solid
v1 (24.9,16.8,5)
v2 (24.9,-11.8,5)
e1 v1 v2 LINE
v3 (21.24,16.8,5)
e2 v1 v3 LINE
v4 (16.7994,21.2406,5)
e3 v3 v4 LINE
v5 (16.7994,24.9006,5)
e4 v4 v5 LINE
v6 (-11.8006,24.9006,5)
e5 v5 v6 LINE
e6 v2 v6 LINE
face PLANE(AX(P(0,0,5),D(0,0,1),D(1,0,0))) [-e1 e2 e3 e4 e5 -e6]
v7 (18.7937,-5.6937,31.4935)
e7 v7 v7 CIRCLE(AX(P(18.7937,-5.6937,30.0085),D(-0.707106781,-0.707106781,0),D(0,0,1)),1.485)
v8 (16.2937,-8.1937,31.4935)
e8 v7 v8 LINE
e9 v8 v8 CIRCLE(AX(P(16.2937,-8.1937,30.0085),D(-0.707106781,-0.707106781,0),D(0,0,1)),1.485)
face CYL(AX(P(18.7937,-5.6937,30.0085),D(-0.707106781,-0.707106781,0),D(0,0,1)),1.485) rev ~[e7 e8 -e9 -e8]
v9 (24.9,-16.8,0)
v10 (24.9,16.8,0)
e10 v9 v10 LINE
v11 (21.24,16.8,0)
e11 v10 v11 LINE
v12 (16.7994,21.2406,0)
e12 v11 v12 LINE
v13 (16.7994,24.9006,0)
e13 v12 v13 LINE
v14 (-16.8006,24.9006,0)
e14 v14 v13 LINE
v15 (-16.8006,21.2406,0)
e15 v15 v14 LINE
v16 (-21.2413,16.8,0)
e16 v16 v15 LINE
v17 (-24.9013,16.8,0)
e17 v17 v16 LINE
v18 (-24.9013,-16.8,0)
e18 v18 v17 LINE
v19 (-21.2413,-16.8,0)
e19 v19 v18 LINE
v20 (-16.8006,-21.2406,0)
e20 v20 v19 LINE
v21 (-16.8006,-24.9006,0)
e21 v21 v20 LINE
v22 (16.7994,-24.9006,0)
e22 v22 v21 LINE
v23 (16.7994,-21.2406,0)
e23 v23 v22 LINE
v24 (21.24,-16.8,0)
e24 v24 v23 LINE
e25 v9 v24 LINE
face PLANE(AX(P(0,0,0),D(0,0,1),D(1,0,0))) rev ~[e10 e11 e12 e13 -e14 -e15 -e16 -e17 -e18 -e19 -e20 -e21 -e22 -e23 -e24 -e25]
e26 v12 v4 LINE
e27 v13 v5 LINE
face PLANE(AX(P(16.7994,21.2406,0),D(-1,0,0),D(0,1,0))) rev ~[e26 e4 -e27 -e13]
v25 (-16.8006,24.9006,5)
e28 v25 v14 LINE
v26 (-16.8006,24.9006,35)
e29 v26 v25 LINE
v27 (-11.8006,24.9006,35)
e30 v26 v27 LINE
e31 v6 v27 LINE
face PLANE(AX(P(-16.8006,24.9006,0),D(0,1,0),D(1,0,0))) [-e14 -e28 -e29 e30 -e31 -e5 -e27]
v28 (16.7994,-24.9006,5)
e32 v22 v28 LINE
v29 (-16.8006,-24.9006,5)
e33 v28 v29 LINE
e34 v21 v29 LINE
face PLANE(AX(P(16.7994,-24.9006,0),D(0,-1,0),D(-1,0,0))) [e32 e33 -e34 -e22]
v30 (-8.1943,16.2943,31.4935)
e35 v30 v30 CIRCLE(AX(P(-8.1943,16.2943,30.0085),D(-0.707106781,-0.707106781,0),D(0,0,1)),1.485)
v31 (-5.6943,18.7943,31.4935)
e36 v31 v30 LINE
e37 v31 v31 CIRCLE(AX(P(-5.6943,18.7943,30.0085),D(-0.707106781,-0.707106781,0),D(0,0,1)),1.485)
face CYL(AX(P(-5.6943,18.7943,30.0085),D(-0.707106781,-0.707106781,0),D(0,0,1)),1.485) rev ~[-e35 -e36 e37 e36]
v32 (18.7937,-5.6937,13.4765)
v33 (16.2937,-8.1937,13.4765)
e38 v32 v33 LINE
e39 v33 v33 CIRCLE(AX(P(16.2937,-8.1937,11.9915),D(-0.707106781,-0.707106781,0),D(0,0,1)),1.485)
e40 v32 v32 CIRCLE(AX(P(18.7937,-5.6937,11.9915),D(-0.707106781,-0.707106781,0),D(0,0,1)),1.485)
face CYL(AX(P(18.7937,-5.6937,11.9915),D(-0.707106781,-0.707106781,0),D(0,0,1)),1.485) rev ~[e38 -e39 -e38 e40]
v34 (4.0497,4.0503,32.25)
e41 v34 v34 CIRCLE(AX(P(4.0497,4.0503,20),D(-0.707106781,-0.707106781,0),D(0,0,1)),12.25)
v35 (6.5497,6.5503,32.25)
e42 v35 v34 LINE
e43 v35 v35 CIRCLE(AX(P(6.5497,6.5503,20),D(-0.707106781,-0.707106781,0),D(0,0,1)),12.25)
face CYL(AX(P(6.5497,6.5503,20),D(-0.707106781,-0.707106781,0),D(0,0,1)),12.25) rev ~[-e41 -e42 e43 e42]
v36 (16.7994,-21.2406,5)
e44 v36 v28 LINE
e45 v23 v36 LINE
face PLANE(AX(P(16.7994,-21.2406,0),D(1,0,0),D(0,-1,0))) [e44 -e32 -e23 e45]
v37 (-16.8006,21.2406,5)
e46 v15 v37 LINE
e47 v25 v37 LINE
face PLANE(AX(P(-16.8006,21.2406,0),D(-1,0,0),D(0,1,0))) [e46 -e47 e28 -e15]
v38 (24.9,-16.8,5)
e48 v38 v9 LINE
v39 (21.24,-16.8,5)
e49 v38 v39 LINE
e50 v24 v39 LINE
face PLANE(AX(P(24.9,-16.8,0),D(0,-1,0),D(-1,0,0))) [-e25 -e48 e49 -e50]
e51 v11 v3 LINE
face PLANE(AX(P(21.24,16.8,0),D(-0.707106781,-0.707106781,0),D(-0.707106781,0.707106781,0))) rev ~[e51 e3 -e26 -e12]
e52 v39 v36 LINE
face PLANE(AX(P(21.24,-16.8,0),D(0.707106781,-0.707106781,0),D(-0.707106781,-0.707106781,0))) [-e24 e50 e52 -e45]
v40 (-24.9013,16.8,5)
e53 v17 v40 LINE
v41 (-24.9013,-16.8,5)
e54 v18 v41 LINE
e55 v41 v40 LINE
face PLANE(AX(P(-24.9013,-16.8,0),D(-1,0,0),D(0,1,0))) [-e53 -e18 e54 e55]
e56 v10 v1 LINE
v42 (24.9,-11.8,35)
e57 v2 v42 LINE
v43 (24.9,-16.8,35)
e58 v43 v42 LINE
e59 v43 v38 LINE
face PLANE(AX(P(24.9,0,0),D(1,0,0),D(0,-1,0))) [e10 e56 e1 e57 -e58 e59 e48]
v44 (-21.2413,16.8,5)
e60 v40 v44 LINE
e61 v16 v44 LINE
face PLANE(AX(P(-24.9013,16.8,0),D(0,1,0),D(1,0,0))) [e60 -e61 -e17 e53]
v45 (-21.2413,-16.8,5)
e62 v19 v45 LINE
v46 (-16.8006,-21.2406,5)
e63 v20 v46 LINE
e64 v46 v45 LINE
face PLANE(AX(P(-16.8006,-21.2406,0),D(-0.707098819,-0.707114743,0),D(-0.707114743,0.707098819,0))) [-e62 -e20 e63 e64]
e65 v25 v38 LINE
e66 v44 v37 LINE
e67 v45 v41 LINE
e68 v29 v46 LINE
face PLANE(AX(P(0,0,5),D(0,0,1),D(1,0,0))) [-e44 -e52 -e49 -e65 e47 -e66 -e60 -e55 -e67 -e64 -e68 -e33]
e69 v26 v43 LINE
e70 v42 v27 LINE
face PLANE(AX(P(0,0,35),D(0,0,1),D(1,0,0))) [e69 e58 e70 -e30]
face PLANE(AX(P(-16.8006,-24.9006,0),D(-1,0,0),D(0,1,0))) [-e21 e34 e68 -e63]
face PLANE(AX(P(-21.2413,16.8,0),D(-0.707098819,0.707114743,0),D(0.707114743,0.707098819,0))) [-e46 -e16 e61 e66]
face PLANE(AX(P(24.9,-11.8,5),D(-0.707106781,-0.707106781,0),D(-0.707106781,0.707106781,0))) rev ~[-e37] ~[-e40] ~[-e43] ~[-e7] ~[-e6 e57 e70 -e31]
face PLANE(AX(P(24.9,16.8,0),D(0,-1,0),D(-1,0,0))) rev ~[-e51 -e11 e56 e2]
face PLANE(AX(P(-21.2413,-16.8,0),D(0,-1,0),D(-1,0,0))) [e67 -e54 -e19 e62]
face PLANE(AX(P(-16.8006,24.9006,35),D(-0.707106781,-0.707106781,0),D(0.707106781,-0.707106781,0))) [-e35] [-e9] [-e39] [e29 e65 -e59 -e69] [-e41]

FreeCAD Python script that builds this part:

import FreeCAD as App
import Part
import Sketcher


def add_polygon(sketch, points):
    """Adds a closed chain of lines whose ends are joined by coincident constraints."""
    first, n = sketch.GeometryCount, len(points)
    for a, b in zip(points, points[1:] + points[:1]):
        sketch.addGeometry(Part.LineSegment(App.Vector(*a, 0), App.Vector(*b, 0)), False)
    for i in range(n):
        sketch.addConstraint(Sketcher.Constraint("Coincident", first + i, 2, first + (i + 1) % n, 1))

doc = App.newDocument("Part")
body = doc.addObject("PartDesign::Body", "Body")

sketch1 = body.newObject("Sketcher::SketchObject", "Sketch")
sketch1.AttachmentSupport = (doc.getObject("XY_Plane"), [""])
sketch1.MapMode = "FlatFace"
add_polygon(sketch1, [(24.9, -16.8), (24.9, 16.8), (21.24, 16.8), (16.7994, 21.2406), (16.7994, 24.9006), (-16.8006, 24.9006), (-16.8006, 21.2406), (-21.2413, 16.8), (-24.9013, 16.8), (-24.9013, -16.8), (-21.2413, -16.8), (-16.8006, -21.2406), (-16.8006, -24.9006), (16.7994, -24.9006), (16.7994, -21.2406), (21.24, -16.8)])
sketch1.addConstraint(Sketcher.Constraint("Vertical", 0))
sketch1.addConstraint(Sketcher.Constraint("Horizontal", 1))
sketch1.addConstraint(Sketcher.Constraint("Vertical", 3))
sketch1.addConstraint(Sketcher.Constraint("Horizontal", 4))
sketch1.addConstraint(Sketcher.Constraint("Vertical", 5))
sketch1.addConstraint(Sketcher.Constraint("Horizontal", 7))
sketch1.addConstraint(Sketcher.Constraint("Vertical", 8))
sketch1.addConstraint(Sketcher.Constraint("Horizontal", 9))
sketch1.addConstraint(Sketcher.Constraint("Vertical", 11))
sketch1.addConstraint(Sketcher.Constraint("Horizontal", 12))
sketch1.addConstraint(Sketcher.Constraint("Vertical", 13))
sketch1.addConstraint(Sketcher.Constraint("Horizontal", 15))
sketch1.addConstraint(Sketcher.Constraint("Symmetric", 6, 2, 9, 2, -1))
sketch1.addConstraint(Sketcher.Constraint("Symmetric", 5, 2, 10, 2, -1))
sketch1.addConstraint(Sketcher.Constraint("Symmetric", 3, 2, 12, 2, -1))
sketch1.addConstraint(Sketcher.Constraint("Symmetric", 1, 2, 14, 2, -1))
sketch1.addConstraint(Sketcher.Constraint("Perpendicular", 2, 6))
sketch1.addConstraint(Sketcher.Constraint("Perpendicular", 6, 10))
sketch1.addConstraint(Sketcher.Constraint("Perpendicular", 10, 14))
sketch1.addConstraint(Sketcher.Constraint("Horizontal", 2, 2, 5, 2))
sketch1.addConstraint(Sketcher.Constraint("Horizontal", 1, 2, 6, 2))
sketch1.addConstraint(Sketcher.Constraint("Equal", 1, 7))
sketch1.addConstraint(Sketcher.Constraint("Equal", 12, 0))
sketch1.addConstraint(Sketcher.Constraint("Equal", 15, 3))
sketch1.addConstraint(Sketcher.Constraint("DistanceX", 4, 2, 4, 1, 33.6))
sketch1.addConstraint(Sketcher.Constraint("DistanceX", 1, 2, 1, 1, 3.66))
sketch1.addConstraint(Sketcher.Constraint("DistanceX", -1, 1, 0, 2, 24.9))
sketch1.addConstraint(Sketcher.Constraint("Distance", 2, 6.28))
pad1 = body.newObject("PartDesign::Pad", "Pad")
pad1.Profile = sketch1
pad1.Length = 5

sketch2 = body.newObject("Sketcher::SketchObject", "Sketch001")
sketch2.AttachmentSupport = (doc.getObject("XY_Plane"), [""])
sketch2.MapMode = "FlatFace"
sketch2.AttachmentOffset = App.Placement(App.Vector(0, 0, 5), App.Rotation())
add_polygon(sketch2, [(-16.8006, 21.2406), (21.24, -16.8), (24.9, -16.8), (24.9, -11.8), (-11.8006, 24.9006), (-16.8006, 24.9006)])
sketch2.addConstraint(Sketcher.Constraint("Horizontal", 1))
sketch2.addConstraint(Sketcher.Constraint("Vertical", 2))
sketch2.addConstraint(Sketcher.Constraint("Horizontal", 4))
sketch2.addConstraint(Sketcher.Constraint("Vertical", 5))
sketch2.addConstraint(Sketcher.Constraint("Parallel", 0, 3))
sketch2.addConstraint(Sketcher.Constraint("Equal", 4, 2))
sketch2.addConstraint(Sketcher.Constraint("Equal", 1, 5))
sketch2.addConstraint(Sketcher.Constraint("DistanceX", 4, 2, 4, 1, 5.0))
sketch2.addConstraint(Sketcher.Constraint("DistanceX", 1, 1, 1, 2, 3.66))
sketch2.addConstraint(Sketcher.Constraint("DistanceY", 0, 2, -1, 1, 16.8))
sketch2.addConstraint(Sketcher.Constraint("DistanceX", -1, 1, 1, 2, 24.9))
sketch2.addConstraint(Sketcher.Constraint("Distance", 0, 53.7975))
pad2 = body.newObject("PartDesign::Pad", "Pad001")
pad2.Profile = sketch2
pad2.Length = 30

sketch3 = body.newObject("Sketcher::SketchObject", "Sketch002")
sketch3.Placement = App.Placement(App.Vector(6.55, 6.55, 0), App.Rotation(App.Vector(-0.707106781, 0.707106781, 0), App.Vector(0, 0, 0.999999999), App.Vector(0.707106781, 0.707106781, 0), "ZXY"))
sketch3.addGeometry(Part.Circle(App.Vector(0.000424, 20, 0), App.Vector(0, 0, 1), 12.25), False)
sketch3.addConstraint(Sketcher.Constraint("Diameter", 0, 24.5))
sketch3.addConstraint(Sketcher.Constraint("DistanceY", -1, 1, 0, 3, 20.0))
sketch3.addConstraint(Sketcher.Constraint("DistanceX", -1, 1, 0, 3, 0.0004))
doc.recompute()
hole = body.newObject("PartDesign::Hole", "Hole")
hole.Profile = sketch3
hole.ThreadType = "None"
hole.Diameter = 24.5
hole.DepthType = "ThroughAll"

sketch4 = body.newObject("Sketcher::SketchObject", "Sketch003")
sketch4.Placement = App.Placement(App.Vector(6.55, 6.55, 0), App.Rotation(App.Vector(-0.707106781, 0.707106781, 0), App.Vector(0, 0, 0.999999999), App.Vector(0.707106781, 0.707106781, 0), "ZXY"))
sketch4.addGeometry(Part.Circle(App.Vector(0.000424, 20, 0), App.Vector(0, 0, 1), 0.005), False)
sketch4.addConstraint(Sketcher.Constraint("Diameter", 0, 0.01))
sketch4.addConstraint(Sketcher.Constraint("DistanceY", -1, 1, 0, 3, 20.0))
sketch4.addConstraint(Sketcher.Constraint("DistanceX", -1, 1, 0, 3, 0.0004))
doc.recompute()
hole2 = body.newObject("PartDesign::Hole", "Hole001")
hole2.Profile = sketch4
hole2.ThreadType = "None"
hole2.Diameter = 0.01
hole2.DepthType = "ThroughAll"

sketch5 = body.newObject("Sketcher::SketchObject", "Sketch004")
sketch5.AttachmentSupport = (doc.getObject("XY_Plane"), [""])
sketch5.MapMode = "FlatFace"
sketch5.AttachmentOffset = App.Placement(App.Vector(0, 0, 35), App.Rotation())
add_polygon(sketch5, [(24.9, -16.8), (-16.8006, 24.9006), (-16.8006, 21.2406), (21.24, -16.8)])
sketch5.addConstraint(Sketcher.Constraint("Vertical", 1))
sketch5.addConstraint(Sketcher.Constraint("Horizontal", 3))
sketch5.addConstraint(Sketcher.Constraint("Parallel", 0, 2))
sketch5.addConstraint(Sketcher.Constraint("Equal", 3, 1))
sketch5.addConstraint(Sketcher.Constraint("DistanceX", 3, 1, 3, 2, 3.66))
sketch5.addConstraint(Sketcher.Constraint("DistanceY", 2, 2, -1, 1, 16.8))
sketch5.addConstraint(Sketcher.Constraint("DistanceX", -1, 1, 3, 2, 24.9))
sketch5.addConstraint(Sketcher.Constraint("Distance", 0, 58.9736))
pocket1 = body.newObject("PartDesign::Pocket", "Pocket")
pocket1.Profile = sketch5
pocket1.Length = 30

sketch6 = body.newObject("Sketcher::SketchObject", "Sketch005")
sketch6.Placement = App.Placement(App.Vector(6.55, 6.55, 0), App.Rotation(App.Vector(-0.707106781, 0.707106781, 0), App.Vector(0, 0, 0.999999999), App.Vector(0.707106781, 0.707106781, 0), "ZXY"))
sketch6.addGeometry(Part.Circle(App.Vector(-17.315207, 30.0085, 0), App.Vector(0, 0, 1), 1.485), False)
sketch6.addGeometry(Part.Circle(App.Vector(17.316055, 30.0085, 0), App.Vector(0, 0, 1), 1.485), False)
sketch6.addConstraint(Sketcher.Constraint("Equal", 0, 1))
sketch6.addConstraint(Sketcher.Constraint("Horizontal", 0, 3, 1, 3))
sketch6.addConstraint(Sketcher.Constraint("Diameter", 0, 2.97))
sketch6.addConstraint(Sketcher.Constraint("DistanceX", -1, 1, 1, 3, 17.316))
sketch6.addConstraint(Sketcher.Constraint("DistanceX", 0, 3, -1, 1, 17.3152))
sketch6.addConstraint(Sketcher.Constraint("DistanceY", -1, 1, 0, 3, 30.0085))
doc.recompute()
hole3 = body.newObject("PartDesign::Hole", "Hole002")
hole3.Profile = sketch6
hole3.ThreadType = "None"
hole3.Diameter = 2.97
hole3.DepthType = "ThroughAll"

sketch7 = body.newObject("Sketcher::SketchObject", "Sketch006")
sketch7.Placement = App.Placement(App.Vector(6.55, 6.55, 0), App.Rotation(App.Vector(-0.707106781, 0.707106781, 0), App.Vector(0, 0, 0.999999999), App.Vector(0.707106781, 0.707106781, 0), "ZXY"))
sketch7.addGeometry(Part.Circle(App.Vector(-17.315207, 11.9915, 0), App.Vector(0, 0, 1), 1.485), False)
sketch7.addConstraint(Sketcher.Constraint("Diameter", 0, 2.97))
sketch7.addConstraint(Sketcher.Constraint("DistanceX", 0, 3, -1, 1, 17.3152))
sketch7.addConstraint(Sketcher.Constraint("DistanceY", -1, 1, 0, 3, 11.9915))
doc.recompute()
hole4 = body.newObject("PartDesign::Hole", "Hole003")
hole4.Profile = sketch7
hole4.ThreadType = "None"
hole4.Diameter = 2.97
hole4.DepthType = "ThroughAll"

doc.recompute()
